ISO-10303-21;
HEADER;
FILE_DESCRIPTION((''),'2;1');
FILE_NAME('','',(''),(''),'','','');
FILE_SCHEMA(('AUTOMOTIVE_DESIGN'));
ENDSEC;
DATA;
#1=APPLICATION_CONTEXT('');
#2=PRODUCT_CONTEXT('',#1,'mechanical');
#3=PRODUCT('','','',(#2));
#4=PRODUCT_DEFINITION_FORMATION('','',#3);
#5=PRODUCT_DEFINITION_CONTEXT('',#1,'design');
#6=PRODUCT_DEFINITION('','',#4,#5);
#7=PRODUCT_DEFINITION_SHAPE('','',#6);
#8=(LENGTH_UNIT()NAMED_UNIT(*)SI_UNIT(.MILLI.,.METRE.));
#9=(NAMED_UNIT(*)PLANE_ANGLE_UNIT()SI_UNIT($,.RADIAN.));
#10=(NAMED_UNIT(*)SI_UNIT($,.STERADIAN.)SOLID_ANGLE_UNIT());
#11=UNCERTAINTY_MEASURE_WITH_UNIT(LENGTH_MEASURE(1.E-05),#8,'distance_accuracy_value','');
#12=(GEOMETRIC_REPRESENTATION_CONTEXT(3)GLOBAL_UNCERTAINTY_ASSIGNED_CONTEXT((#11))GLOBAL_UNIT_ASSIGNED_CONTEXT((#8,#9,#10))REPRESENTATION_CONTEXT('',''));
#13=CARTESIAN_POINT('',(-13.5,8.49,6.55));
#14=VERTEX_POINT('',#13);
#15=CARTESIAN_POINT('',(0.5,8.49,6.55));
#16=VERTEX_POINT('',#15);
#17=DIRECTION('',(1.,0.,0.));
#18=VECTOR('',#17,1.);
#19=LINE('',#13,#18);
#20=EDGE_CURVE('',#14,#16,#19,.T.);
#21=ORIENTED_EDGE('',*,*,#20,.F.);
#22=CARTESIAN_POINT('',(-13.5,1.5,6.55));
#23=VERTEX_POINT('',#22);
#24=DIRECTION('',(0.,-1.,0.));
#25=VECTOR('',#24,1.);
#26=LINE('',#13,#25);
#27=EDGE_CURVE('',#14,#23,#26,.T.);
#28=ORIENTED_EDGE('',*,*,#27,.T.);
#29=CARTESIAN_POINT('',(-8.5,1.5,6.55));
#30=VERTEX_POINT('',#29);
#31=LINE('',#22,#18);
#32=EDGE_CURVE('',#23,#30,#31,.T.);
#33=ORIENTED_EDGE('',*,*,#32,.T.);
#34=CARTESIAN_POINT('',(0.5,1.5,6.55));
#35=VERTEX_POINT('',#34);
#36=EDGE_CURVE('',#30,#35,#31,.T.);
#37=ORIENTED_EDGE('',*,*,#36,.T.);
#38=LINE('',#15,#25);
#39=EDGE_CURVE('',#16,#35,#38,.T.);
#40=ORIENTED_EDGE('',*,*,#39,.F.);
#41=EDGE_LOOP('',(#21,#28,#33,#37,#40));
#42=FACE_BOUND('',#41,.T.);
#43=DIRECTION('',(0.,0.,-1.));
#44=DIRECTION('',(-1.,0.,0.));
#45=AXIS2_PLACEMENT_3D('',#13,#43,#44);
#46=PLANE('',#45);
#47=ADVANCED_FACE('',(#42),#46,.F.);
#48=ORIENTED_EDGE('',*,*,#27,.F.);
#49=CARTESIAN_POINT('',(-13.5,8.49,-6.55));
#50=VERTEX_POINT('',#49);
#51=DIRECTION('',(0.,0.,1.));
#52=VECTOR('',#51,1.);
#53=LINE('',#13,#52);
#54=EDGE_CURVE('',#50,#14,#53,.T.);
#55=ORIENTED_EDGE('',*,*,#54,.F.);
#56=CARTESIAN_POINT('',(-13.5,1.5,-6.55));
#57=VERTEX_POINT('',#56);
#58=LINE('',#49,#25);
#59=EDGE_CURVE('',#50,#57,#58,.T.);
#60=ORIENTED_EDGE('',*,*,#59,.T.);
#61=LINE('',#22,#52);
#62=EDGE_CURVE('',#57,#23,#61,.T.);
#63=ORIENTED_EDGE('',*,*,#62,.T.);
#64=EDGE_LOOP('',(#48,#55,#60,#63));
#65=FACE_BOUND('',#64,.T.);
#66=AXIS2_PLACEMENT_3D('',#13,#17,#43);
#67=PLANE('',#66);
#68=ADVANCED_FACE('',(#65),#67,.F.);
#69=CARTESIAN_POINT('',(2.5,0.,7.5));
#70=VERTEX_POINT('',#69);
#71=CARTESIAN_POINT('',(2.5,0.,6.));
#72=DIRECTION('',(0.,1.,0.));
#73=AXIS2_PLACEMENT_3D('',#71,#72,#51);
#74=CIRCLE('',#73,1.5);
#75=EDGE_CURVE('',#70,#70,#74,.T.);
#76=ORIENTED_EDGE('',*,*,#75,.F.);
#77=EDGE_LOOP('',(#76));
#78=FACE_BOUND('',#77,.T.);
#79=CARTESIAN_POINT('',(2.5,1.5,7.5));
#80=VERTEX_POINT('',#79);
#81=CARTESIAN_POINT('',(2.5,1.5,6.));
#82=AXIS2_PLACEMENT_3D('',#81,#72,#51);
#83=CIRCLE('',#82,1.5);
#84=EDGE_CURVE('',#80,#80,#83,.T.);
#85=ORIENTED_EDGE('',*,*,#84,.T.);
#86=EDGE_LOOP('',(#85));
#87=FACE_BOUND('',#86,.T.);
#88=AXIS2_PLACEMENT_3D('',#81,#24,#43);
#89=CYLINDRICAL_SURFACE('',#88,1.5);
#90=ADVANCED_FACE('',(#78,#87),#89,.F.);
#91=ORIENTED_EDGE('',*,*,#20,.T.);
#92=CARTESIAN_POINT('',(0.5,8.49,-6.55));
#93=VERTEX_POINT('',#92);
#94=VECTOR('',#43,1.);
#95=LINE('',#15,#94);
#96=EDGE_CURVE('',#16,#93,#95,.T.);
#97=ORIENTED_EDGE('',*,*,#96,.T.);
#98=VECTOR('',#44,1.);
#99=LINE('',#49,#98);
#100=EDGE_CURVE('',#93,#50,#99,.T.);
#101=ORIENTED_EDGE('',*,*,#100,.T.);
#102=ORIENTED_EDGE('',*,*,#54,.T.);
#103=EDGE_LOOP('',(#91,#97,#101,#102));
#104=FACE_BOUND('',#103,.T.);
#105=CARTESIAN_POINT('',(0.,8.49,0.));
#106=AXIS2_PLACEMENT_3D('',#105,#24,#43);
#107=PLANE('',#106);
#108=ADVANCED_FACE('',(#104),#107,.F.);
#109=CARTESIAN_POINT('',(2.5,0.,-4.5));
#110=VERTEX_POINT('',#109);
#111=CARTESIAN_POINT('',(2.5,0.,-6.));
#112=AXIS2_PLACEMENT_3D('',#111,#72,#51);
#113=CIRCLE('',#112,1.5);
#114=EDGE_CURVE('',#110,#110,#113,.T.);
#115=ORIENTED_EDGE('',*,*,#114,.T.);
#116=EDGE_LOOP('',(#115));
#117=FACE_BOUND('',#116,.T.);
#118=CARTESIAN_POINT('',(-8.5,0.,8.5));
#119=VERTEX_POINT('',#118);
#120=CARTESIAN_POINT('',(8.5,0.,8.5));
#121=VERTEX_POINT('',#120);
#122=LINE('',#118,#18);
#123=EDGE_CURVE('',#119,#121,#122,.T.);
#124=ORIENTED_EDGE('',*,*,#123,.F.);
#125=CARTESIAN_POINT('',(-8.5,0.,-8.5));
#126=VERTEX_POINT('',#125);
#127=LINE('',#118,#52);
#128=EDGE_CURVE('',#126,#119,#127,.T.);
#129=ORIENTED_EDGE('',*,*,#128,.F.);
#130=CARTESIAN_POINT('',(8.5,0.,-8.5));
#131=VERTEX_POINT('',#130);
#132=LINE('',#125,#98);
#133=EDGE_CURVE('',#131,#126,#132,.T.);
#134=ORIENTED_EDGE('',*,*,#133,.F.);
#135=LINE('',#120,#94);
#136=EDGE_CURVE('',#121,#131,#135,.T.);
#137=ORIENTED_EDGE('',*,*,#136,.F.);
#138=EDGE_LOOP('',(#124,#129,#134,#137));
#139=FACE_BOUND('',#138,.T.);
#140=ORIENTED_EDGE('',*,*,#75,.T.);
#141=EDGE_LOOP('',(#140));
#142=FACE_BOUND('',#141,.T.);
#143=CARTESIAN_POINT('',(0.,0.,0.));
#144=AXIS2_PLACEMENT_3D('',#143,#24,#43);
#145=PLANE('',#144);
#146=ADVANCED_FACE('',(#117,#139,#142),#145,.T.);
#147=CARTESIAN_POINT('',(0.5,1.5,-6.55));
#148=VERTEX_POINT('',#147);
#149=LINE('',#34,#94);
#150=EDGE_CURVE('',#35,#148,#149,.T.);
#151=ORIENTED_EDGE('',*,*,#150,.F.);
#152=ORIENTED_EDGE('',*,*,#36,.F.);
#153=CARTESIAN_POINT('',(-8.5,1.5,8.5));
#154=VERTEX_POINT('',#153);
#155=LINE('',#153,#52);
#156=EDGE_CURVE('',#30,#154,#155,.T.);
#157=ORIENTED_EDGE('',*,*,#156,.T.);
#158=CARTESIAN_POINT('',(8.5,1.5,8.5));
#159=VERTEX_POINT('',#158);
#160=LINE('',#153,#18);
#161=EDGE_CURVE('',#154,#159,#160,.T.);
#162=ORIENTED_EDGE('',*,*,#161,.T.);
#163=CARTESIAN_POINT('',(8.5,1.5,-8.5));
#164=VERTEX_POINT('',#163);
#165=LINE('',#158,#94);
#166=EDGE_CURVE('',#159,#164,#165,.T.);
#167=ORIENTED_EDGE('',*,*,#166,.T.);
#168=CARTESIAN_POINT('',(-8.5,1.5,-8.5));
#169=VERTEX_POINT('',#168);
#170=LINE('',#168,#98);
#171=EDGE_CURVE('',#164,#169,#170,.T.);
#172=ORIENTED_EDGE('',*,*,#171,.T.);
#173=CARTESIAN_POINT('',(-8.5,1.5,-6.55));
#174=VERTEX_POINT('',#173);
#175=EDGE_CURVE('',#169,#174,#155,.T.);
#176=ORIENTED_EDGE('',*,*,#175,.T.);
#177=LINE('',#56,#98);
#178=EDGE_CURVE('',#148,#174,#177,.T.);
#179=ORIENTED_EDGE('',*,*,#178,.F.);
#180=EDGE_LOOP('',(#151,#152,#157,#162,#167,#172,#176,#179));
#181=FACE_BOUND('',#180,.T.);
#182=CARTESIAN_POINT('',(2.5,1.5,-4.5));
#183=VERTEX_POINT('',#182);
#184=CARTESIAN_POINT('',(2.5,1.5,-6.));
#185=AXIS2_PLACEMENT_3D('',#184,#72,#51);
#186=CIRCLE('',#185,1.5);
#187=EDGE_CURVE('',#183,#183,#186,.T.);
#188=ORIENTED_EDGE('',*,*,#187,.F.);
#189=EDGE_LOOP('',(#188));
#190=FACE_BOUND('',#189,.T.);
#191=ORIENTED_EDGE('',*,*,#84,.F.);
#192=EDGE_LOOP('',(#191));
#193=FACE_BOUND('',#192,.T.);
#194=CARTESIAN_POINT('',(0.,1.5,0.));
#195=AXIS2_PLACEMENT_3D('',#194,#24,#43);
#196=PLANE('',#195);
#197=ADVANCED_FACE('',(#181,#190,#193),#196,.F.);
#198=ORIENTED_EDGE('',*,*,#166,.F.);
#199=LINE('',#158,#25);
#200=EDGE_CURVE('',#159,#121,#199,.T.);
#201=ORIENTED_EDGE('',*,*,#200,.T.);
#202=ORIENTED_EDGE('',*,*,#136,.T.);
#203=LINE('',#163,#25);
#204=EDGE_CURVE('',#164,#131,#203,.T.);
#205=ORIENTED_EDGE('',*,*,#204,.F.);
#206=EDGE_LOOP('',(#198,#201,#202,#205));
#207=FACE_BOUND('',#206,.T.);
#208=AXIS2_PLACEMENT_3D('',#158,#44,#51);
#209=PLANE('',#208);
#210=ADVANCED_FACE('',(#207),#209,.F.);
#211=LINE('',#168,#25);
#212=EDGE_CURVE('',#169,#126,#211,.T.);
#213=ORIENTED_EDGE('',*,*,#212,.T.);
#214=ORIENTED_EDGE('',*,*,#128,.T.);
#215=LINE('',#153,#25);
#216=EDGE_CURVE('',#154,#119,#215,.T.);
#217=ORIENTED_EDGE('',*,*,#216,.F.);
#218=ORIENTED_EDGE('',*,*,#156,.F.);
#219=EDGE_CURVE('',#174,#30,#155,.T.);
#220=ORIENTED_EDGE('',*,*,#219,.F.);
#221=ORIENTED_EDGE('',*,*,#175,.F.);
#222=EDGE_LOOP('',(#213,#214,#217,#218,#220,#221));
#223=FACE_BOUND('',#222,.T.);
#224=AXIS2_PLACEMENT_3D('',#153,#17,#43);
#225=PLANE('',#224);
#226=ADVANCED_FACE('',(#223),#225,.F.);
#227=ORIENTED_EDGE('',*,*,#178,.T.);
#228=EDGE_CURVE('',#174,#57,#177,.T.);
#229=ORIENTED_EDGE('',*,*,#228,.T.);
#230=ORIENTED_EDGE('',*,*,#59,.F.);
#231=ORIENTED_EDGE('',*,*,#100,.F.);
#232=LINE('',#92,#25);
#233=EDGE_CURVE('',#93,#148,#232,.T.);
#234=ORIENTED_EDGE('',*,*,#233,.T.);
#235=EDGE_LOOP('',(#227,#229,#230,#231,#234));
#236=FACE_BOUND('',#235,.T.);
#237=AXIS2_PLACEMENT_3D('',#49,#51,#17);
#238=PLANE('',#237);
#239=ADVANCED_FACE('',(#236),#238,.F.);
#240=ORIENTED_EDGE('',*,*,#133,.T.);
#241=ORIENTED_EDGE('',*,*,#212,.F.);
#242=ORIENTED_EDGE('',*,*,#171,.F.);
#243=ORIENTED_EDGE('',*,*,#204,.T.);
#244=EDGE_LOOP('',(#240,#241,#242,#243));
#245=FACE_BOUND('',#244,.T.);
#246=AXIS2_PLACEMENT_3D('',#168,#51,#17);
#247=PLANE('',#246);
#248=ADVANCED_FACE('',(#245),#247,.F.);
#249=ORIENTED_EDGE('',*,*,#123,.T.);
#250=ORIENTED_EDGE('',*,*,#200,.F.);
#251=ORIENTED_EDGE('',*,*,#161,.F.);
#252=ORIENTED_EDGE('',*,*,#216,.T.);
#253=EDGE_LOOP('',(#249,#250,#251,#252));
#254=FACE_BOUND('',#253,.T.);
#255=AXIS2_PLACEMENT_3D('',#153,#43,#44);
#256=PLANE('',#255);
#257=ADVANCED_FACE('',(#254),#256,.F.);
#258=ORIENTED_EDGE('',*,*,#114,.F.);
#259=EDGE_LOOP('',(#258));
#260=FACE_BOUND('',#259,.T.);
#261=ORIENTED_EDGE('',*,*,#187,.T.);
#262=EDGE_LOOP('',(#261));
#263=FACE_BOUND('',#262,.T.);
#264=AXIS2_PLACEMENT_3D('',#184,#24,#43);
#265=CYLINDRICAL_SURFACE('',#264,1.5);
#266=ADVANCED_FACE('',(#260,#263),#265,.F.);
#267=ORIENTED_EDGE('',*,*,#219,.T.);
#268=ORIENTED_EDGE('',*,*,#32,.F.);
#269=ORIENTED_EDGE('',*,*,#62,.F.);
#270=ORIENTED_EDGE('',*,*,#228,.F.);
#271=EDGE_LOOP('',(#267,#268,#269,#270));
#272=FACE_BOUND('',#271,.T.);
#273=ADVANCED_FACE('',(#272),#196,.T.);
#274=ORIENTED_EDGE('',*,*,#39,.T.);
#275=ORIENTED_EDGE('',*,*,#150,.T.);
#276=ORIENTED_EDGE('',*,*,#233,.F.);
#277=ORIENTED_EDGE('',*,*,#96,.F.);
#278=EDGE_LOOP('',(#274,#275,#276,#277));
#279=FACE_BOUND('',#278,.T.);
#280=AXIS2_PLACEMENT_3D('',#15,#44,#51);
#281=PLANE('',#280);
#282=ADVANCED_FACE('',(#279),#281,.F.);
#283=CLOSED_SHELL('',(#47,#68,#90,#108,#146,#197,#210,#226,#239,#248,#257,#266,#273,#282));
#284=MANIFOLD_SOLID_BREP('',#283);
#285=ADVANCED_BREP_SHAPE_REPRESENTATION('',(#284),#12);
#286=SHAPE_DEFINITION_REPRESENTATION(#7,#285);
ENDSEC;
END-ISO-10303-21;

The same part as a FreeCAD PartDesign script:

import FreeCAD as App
import Part
import Sketcher
from FreeCAD import Vector
Q = App.Units.Quantity


def add_polygon(sketch, points):
    """Adds a closed chain of lines whose ends are joined by coincident constraints."""
    first, n = sketch.GeometryCount, len(points)
    for a, b in zip(points, points[1:] + points[:1]):
        sketch.addGeometry(Part.LineSegment(App.Vector(*a, 0), App.Vector(*b, 0)), False)
    for i in range(n):
        sketch.addConstraint(Sketcher.Constraint("Coincident", first + i, 2, first + (i + 1) % n, 1))

doc = App.newDocument("Part")
body = doc.addObject("PartDesign::Body", "Body")

# Sketch on XZ plane
sketch1 = body.newObject("Sketcher::SketchObject", "Sketch")
sketch1.AttachmentSupport = (doc.getObject("XZ_Plane"), [""])
sketch1.MapMode = "FlatFace"
add_polygon(sketch1, [(-8.5, -8.5), (-8.5, 8.5), (8.5, 8.5), (8.5, -8.5)])  # lines 0-3
sketch1.addGeometry(Part.Circle(Vector(2.5, 6, 0), Vector(0, 0, 1), 1.5), False)  # 4
sketch1.addGeometry(Part.Circle(Vector(2.5, -6, 0), Vector(0, 0, 1), 1.5), False)  # 5
sketch1.addConstraint(Sketcher.Constraint("Vertical", 0))
sketch1.addConstraint(Sketcher.Constraint("Horizontal", 1))
sketch1.addConstraint(Sketcher.Constraint("Vertical", 2))
sketch1.addConstraint(Sketcher.Constraint("Horizontal", 3))
sketch1.addConstraint(Sketcher.Constraint("Equal", 4, 5))
sketch1.addConstraint(Sketcher.Constraint("Symmetric", 0, 2, 2, 2, -1, 1))
sketch1.addConstraint(Sketcher.Constraint("Symmetric", 4, 3, 5, 3, -1))
sketch1.addConstraint(Sketcher.Constraint("Equal", 3, 0))
sketch1.addConstraint(Sketcher.Constraint("Diameter", 4, Q("3 mm")))
sketch1.addConstraint(Sketcher.Constraint("DistanceX", 1, 1, 1, 2, Q("17 mm")))
sketch1.addConstraint(Sketcher.Constraint("DistanceY", -1, 1, 4, 3, Q("6 mm")))
sketch1.addConstraint(Sketcher.Constraint("DistanceX", 0, 2, 4, 3, Q("11 mm")))
pad1 = body.newObject("PartDesign::Pad", "Pad")
pad1.Profile = sketch1
pad1.Length = 1.5
pad1.Reversed = True

# Sketch on XZ plane
sketch2 = body.newObject("Sketcher::SketchObject", "Sketch001")
sketch2.AttachmentSupport = (doc.getObject("XZ_Plane"), [""])
sketch2.MapMode = "FlatFace"
sketch2.AttachmentOffset = App.Placement(Vector(0, 0, -1.5), App.Rotation())
add_polygon(sketch2, [(-14, -7), (-14, 7), (0, 7), (0, -7)])  # lines 0-3
sketch2.addConstraint(Sketcher.Constraint("Vertical", 0))
sketch2.addConstraint(Sketcher.Constraint("Horizontal", 1))
sketch2.addConstraint(Sketcher.Constraint("Vertical", 2))
sketch2.addConstraint(Sketcher.Constraint("Horizontal", 3))
sketch2.addConstraint(Sketcher.Constraint("DistanceX", 1, 1, 1, 2, Q("14 mm")))
sketch2.addConstraint(Sketcher.Constraint("DistanceY", 0, 1, 0, 2, Q("13.1 mm")))
sketch2.addConstraint(Sketcher.Constraint("DistanceX", 0, 2, -1, 1, Q("13.5 mm")))
sketch2.addConstraint(Sketcher.Constraint("DistanceY", -1, 1, 0, 2, Q("6.55 mm")))
pad2 = body.newObject("PartDesign::Pad", "Pad001")
pad2.Profile = sketch2
pad2.Length = 6.99
pad2.Reversed = True

doc.recompute()
